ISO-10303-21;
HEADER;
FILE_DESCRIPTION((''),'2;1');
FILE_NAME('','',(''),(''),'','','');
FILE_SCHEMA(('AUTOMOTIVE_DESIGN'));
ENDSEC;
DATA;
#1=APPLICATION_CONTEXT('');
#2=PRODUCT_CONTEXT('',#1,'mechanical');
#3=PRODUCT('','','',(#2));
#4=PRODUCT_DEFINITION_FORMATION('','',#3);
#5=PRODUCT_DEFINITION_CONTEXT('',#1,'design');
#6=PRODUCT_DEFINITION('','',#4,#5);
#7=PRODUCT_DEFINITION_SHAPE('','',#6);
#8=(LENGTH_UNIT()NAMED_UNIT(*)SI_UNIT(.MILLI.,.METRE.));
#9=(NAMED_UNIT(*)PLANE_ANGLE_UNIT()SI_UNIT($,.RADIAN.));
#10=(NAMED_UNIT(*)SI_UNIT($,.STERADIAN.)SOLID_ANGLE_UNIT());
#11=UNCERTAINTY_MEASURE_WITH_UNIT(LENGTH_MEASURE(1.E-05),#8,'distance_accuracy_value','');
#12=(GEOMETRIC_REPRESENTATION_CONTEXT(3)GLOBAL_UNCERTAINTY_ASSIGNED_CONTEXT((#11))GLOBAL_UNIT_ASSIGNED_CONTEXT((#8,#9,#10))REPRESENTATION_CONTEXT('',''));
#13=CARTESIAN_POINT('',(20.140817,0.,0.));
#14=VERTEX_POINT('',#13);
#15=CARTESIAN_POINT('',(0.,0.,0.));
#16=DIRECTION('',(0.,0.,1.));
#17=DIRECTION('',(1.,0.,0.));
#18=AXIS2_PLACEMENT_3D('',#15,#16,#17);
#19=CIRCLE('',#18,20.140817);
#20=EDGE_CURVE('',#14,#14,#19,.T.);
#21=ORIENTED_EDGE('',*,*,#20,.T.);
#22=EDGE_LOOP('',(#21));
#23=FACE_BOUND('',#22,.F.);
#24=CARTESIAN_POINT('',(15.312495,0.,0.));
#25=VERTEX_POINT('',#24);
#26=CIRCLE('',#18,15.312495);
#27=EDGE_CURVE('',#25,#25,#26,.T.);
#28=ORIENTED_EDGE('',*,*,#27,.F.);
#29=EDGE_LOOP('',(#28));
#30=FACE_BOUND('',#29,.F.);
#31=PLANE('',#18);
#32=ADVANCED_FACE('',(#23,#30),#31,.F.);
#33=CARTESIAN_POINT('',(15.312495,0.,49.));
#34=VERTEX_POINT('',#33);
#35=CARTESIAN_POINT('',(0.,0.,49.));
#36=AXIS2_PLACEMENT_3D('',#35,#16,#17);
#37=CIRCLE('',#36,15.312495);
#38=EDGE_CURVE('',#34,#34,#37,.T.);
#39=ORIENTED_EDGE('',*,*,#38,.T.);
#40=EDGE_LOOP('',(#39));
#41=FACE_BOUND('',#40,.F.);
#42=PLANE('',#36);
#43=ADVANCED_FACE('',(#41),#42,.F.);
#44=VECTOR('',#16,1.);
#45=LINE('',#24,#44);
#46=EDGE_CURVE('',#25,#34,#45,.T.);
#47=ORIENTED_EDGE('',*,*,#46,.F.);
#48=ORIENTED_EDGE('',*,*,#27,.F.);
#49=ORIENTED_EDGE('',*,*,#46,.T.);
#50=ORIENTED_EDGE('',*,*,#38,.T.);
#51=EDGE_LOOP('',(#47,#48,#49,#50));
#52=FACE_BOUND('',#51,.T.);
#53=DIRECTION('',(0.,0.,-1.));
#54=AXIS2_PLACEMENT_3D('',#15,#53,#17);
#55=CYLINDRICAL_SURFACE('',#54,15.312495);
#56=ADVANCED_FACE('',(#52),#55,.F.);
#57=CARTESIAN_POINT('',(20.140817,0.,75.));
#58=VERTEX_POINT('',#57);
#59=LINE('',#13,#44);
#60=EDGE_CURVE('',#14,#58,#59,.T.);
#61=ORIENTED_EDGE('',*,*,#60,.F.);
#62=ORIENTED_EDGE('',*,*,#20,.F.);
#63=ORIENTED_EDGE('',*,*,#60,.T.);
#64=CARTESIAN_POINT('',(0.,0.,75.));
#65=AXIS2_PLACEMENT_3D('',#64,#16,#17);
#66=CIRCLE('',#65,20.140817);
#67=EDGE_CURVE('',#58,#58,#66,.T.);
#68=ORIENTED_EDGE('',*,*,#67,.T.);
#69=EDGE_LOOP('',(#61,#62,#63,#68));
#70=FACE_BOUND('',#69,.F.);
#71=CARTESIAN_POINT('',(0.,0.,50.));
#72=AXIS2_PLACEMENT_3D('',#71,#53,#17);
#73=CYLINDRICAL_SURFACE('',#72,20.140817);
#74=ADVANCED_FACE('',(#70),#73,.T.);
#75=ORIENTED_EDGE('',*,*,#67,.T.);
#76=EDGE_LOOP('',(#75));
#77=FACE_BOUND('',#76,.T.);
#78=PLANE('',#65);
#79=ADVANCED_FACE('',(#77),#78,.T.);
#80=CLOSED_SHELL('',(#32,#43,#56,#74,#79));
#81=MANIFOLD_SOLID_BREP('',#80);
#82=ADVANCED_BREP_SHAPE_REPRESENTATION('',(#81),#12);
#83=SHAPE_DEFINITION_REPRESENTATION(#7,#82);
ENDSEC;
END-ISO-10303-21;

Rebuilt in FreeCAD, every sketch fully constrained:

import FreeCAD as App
import Part
import Sketcher
from FreeCAD import Vector

doc = App.newDocument("Part")
body = doc.addObject("PartDesign::Body", "Body")

# Sketch on XY plane
sketch1 = body.newObject("Sketcher::SketchObject", "Sketch")
sketch1.AttachmentSupport = (doc.getObject("XY_Plane"), [""])
sketch1.MapMode = "FlatFace"
sketch1.addGeometry(Part.Circle(Vector(0, 0, 0), Vector(0, 0, 1), 20), False)
sketch1.addConstraint([
    Sketcher.Constraint("Coincident", 0, 3, -1, 1),
    Sketcher.Constraint("Diameter", 0, 40.281634),
])
pad1 = body.newObject("PartDesign::Pad", "Pad")
pad1.Profile = sketch1
pad1.Length = 50

# Sketch on XY plane
sketch2 = body.newObject("Sketcher::SketchObject", "Sketch001")
sketch2.AttachmentSupport = (doc.getObject("XY_Plane"), [""])
sketch2.MapMode = "FlatFace"
sketch2.addGeometry(Part.Circle(Vector(0, 0, 0), Vector(0, 0, 1), 15), False)
sketch2.addConstraint([
    Sketcher.Constraint("Coincident", 0, 3, -1, 1),
    Sketcher.Constraint("Diameter", 0, 30.62499),
])
pocket1 = body.newObject("PartDesign::Pocket", "Pocket")
pocket1.Profile = sketch2
pocket1.Length = 49
pocket1.Reversed = True

# Sketch on XY plane
sketch3 = body.newObject("Sketcher::SketchObject", "Sketch002")
sketch3.AttachmentSupport = (doc.getObject("XY_Plane"), [""])
sketch3.MapMode = "FlatFace"
sketch3.AttachmentOffset = App.Placement(Vector(0, 0, 50), App.Rotation())
sketch3.addGeometry(Part.Circle(Vector(0, 0, 0), Vector(0, 0, 1), 20), False)
sketch3.addConstraint([
    Sketcher.Constraint("Coincident", 0, 3, -1, 1),
    Sketcher.Constraint("Diameter", 0, 40.281634),
])
pad2 = body.newObject("PartDesign::Pad", "Pad001")
pad2.Profile = sketch3
pad2.Length = 25

doc.recompute()
